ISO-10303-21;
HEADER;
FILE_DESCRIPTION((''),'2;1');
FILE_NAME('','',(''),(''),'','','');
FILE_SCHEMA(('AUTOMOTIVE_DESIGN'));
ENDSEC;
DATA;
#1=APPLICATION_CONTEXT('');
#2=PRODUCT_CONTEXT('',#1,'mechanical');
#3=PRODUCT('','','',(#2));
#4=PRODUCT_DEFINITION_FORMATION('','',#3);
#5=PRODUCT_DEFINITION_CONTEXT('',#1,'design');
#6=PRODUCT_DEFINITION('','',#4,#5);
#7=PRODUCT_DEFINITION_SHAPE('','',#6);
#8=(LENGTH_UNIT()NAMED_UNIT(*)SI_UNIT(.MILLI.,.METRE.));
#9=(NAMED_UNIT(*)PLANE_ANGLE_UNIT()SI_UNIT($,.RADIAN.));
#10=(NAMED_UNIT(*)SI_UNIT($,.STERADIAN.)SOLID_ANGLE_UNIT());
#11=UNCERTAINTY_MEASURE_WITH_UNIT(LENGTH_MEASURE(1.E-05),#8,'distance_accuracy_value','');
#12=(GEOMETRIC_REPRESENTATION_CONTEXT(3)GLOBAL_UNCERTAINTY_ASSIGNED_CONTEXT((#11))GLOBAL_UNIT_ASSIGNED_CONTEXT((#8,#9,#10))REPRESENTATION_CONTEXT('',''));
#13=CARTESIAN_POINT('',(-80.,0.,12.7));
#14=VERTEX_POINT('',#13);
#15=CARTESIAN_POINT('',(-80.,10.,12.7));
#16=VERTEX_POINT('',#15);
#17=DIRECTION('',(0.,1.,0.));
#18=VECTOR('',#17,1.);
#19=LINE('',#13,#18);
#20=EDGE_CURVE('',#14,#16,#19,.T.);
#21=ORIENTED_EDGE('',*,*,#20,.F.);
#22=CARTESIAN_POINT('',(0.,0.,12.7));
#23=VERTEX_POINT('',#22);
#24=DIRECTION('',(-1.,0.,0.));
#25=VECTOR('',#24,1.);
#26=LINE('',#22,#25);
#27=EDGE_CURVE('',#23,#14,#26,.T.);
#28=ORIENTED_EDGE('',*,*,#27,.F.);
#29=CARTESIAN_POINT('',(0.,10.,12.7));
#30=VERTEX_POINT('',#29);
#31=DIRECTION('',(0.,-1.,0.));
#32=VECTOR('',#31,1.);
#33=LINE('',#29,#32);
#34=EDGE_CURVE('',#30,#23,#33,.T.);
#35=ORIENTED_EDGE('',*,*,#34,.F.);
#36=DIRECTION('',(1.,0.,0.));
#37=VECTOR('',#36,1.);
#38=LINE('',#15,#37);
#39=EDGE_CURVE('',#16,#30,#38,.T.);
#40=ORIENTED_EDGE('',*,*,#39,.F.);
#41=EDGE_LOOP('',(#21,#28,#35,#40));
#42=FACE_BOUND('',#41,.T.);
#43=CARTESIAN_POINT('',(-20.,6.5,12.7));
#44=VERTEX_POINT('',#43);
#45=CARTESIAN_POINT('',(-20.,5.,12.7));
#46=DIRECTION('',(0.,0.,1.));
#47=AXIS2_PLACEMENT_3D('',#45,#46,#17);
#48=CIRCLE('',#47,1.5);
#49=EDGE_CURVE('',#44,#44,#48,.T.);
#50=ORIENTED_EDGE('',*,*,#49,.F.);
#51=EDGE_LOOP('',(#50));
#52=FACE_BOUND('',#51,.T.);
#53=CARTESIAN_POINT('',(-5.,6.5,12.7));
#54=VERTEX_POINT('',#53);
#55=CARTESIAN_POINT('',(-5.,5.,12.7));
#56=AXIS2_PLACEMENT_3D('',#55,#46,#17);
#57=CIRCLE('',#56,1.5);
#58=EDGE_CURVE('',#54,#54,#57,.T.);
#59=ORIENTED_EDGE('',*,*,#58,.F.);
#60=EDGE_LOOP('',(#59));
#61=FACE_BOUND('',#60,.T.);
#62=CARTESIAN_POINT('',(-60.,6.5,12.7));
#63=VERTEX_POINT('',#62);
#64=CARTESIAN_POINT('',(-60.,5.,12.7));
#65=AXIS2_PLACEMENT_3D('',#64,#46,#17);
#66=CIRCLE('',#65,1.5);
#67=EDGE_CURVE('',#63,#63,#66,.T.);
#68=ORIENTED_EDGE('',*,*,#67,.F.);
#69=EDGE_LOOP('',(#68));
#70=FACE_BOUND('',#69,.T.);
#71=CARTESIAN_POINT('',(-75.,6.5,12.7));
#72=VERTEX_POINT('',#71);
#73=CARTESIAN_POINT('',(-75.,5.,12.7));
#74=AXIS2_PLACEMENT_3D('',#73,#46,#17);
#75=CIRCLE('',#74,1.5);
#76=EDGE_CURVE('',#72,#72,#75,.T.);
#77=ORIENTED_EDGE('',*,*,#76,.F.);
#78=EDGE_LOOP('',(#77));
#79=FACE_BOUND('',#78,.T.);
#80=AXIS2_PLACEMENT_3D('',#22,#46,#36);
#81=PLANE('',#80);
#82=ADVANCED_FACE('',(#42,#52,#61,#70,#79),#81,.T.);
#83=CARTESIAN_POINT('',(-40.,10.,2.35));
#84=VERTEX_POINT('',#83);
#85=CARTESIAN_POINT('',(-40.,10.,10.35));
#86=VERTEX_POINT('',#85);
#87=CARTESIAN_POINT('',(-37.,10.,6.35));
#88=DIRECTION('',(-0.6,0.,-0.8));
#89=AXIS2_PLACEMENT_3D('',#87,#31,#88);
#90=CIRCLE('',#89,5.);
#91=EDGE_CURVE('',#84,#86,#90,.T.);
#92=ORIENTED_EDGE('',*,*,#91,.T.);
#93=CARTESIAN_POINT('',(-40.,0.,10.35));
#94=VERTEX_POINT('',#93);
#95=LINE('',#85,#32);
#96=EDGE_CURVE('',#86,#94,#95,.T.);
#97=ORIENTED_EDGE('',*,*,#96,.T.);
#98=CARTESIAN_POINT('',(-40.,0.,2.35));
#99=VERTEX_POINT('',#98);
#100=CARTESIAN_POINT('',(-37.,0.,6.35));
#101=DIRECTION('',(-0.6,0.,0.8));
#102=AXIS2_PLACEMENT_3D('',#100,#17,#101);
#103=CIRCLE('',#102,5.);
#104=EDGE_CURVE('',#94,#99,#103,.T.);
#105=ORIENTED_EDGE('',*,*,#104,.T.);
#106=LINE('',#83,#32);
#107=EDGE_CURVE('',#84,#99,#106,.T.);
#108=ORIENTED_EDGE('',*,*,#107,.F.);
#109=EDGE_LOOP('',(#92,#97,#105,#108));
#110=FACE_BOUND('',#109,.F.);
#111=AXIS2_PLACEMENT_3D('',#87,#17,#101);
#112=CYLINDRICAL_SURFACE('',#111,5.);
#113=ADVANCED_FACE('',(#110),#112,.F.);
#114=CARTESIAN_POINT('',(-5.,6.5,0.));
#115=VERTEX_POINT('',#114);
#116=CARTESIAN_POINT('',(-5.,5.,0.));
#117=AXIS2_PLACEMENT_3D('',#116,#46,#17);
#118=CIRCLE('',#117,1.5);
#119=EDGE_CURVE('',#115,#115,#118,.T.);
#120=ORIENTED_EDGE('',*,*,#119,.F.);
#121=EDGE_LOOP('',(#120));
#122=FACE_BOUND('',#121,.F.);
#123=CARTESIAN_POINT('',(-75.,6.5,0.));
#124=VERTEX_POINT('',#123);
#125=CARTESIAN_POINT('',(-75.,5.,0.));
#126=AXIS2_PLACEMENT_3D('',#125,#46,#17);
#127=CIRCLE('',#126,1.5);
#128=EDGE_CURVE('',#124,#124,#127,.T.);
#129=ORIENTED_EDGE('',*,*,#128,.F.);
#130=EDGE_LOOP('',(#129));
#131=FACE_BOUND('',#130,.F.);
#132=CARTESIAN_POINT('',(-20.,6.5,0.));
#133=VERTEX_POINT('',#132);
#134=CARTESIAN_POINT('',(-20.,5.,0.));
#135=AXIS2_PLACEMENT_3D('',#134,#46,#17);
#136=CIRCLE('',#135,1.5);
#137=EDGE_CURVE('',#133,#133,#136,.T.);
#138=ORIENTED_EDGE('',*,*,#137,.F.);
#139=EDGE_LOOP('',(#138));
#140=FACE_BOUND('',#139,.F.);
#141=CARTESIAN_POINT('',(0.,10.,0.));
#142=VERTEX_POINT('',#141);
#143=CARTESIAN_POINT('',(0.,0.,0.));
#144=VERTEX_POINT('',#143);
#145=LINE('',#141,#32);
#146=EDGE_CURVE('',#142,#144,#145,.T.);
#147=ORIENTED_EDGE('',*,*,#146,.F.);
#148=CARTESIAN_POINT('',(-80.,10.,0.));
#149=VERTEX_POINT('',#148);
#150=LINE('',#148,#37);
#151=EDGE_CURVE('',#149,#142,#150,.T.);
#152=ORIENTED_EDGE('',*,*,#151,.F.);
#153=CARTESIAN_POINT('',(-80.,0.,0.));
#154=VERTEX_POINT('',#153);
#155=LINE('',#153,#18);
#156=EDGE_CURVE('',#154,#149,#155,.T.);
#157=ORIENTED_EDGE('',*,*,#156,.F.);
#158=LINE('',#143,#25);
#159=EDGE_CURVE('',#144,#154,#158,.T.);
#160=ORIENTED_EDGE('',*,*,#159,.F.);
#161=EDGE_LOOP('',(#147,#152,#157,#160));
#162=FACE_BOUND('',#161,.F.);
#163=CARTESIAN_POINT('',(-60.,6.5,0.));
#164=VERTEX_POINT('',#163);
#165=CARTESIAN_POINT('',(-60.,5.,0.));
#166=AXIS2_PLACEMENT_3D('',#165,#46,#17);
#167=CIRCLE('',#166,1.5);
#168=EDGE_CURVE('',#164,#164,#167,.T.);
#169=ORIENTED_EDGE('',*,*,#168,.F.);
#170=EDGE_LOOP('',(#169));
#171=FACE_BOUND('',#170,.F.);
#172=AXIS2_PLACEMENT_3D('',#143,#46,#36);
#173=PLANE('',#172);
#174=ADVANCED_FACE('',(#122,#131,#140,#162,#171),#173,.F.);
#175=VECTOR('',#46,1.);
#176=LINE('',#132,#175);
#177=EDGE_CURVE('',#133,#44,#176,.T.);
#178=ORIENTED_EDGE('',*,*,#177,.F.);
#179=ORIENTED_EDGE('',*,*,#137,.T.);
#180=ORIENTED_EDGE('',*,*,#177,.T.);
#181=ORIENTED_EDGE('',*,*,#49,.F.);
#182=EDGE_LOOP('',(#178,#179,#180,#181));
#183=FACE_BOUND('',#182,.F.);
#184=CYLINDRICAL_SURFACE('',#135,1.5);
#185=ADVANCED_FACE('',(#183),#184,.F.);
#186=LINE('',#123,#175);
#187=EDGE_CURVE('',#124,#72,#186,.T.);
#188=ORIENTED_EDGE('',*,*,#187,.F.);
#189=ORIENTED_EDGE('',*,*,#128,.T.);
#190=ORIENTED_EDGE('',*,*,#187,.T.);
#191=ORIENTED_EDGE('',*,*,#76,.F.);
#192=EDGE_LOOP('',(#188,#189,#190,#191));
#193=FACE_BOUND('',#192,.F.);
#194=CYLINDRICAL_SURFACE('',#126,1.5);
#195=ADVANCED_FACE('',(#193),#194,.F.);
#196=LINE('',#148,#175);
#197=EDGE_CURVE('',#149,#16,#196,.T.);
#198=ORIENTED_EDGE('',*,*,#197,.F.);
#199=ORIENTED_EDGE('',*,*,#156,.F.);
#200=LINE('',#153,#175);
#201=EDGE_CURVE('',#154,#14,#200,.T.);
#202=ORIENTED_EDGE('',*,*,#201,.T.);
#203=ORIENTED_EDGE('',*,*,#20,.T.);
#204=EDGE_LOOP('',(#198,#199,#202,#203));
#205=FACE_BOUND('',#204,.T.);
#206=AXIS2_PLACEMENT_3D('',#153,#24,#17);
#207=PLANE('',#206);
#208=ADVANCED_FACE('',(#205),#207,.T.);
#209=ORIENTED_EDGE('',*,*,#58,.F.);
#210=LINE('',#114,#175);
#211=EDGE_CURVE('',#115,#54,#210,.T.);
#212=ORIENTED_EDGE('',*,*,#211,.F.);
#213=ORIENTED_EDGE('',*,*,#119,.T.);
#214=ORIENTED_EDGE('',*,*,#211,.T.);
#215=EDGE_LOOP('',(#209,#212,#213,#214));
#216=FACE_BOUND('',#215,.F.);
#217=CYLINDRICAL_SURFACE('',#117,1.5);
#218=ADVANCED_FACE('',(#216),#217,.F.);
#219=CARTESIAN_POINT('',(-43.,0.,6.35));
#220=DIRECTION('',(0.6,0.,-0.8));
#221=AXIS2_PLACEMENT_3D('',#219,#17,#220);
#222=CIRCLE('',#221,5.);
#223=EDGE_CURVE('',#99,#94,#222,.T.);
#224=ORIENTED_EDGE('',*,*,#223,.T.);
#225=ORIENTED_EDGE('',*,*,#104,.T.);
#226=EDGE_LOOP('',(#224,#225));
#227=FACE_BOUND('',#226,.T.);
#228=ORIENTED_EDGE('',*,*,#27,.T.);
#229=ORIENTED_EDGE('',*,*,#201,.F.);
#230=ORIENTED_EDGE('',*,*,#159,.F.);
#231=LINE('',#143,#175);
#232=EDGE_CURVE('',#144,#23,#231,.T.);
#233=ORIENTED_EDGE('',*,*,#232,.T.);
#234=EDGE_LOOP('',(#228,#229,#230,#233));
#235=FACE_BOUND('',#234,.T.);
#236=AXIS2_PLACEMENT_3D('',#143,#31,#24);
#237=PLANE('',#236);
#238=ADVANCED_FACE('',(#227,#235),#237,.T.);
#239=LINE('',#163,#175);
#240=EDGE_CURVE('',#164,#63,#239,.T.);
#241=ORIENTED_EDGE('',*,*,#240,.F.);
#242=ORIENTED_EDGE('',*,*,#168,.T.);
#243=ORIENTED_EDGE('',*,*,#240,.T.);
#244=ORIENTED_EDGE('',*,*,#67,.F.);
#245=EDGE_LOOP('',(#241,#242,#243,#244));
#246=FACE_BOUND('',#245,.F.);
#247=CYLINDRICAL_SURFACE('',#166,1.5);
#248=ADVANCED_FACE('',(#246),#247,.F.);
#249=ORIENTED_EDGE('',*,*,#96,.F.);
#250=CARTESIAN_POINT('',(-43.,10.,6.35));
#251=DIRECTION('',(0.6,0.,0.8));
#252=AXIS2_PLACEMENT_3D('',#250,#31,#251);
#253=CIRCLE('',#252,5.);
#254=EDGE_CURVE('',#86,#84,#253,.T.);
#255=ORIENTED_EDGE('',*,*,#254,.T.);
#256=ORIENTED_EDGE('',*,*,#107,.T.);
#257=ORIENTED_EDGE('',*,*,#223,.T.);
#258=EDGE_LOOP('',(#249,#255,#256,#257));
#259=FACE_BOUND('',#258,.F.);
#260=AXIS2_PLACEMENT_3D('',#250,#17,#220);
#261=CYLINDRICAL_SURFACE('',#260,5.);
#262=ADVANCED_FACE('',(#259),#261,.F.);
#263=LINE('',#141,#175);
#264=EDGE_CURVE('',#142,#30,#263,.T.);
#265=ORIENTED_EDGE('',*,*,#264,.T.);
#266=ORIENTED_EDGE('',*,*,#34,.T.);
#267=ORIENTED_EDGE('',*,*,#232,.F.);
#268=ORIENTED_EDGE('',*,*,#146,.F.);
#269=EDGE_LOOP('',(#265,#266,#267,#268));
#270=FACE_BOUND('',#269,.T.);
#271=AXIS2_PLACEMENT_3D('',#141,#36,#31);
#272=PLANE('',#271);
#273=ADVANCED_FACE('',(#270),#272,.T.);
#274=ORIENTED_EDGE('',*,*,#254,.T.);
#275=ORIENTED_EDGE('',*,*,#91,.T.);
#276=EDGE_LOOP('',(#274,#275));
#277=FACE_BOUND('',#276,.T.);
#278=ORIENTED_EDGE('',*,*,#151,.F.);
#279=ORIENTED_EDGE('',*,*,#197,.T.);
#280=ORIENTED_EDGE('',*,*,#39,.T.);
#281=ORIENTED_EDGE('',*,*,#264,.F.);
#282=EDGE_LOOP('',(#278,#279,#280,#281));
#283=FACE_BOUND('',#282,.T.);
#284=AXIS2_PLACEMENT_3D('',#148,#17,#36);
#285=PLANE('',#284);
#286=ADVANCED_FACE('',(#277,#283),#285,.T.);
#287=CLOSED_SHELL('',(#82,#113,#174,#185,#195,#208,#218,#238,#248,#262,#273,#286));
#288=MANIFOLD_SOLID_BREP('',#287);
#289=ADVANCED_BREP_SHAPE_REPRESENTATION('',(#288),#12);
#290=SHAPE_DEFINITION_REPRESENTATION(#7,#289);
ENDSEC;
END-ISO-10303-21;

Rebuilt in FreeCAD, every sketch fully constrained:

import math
import FreeCAD as App
import Part
import Sketcher
from FreeCAD import Vector
Q = App.Units.Quantity

doc = App.newDocument("Part")
body = doc.addObject("PartDesign::Body", "Body")

# Sketch on XY plane
sketch1 = body.newObject("Sketcher::SketchObject", "Sketch")
sketch1.AttachmentSupport = (doc.getObject("XY_Plane"), [""])
sketch1.MapMode = "FlatFace"
sketch1.addGeometry([
    Part.LineSegment(Vector(0, 10, 0), Vector(-80, 10, 0)),
    Part.LineSegment(Vector(-80, 10, 0), Vector(-80, 0, 0)),
    Part.LineSegment(Vector(-80, 0, 0), Vector(0, 0, 0)),
    Part.LineSegment(Vector(0, 0, 0), Vector(0, 10, 0)),
], False)
sketch1.addConstraint([
    Sketcher.Constraint("Coincident", 0, 2, 1, 1),
    Sketcher.Constraint("Coincident", 1, 2, 2, 1),
    Sketcher.Constraint("Coincident", 2, 2, 3, 1),
    Sketcher.Constraint("Coincident", 3, 2, 0, 1),
    Sketcher.Constraint("Horizontal", 0),
    Sketcher.Constraint("Vertical", 1),
    Sketcher.Constraint("Horizontal", 2),
    Sketcher.Constraint("Vertical", 3),
    Sketcher.Constraint("Coincident", 2, 2, -1, 1),
    Sketcher.Constraint("DistanceX", 0, 2, 0, 1, Q("3.1496 in")),
    Sketcher.Constraint("DistanceY", 1, 2, 1, 1, Q("0.3937 in")),
])
pad1 = body.newObject("PartDesign::Pad", "Pad")
pad1.Profile = sketch1
pad1.Length = Q("0.5 in")

# Sketch on XY plane
sketch2 = body.newObject("Sketcher::SketchObject", "Sketch001")
sketch2.AttachmentSupport = (doc.getObject("XY_Plane"), [""])
sketch2.MapMode = "FlatFace"
sketch2.addGeometry([
    Part.Circle(Vector(-5, 5, 0), Vector(0, 0, 1), 1.5),
    Part.Circle(Vector(-20, 5, 0), Vector(0, 0, 1), 1.5),
    Part.Circle(Vector(-60, 5, 0), Vector(0, 0, 1), 1.5),
    Part.Circle(Vector(-75, 5, 0), Vector(0, 0, 1), 1.5),
], False)
sketch2.addConstraint([
    Sketcher.Constraint("Equal", 0, 1),
    Sketcher.Constraint("Equal", 1, 2),
    Sketcher.Constraint("Equal", 2, 3),
    Sketcher.Constraint("Horizontal", 0, 3, 1, 3),
    Sketcher.Constraint("Horizontal", 1, 3, 2, 3),
    Sketcher.Constraint("Horizontal", 2, 3, 3, 3),
    Sketcher.Constraint("Diameter", 0, Q("0.1181 in")),
    Sketcher.Constraint("DistanceX", 1, 3, -1, 1, Q("0.7874 in")),
    Sketcher.Constraint("DistanceX", 2, 3, -1, 1, Q("2.3622 in")),
    Sketcher.Constraint("DistanceX", 3, 3, 0, 3, Q("2.7559 in")),
    Sketcher.Constraint("DistanceX", 0, 3, -1, 1, Q("5 mm")),
    Sketcher.Constraint("DistanceY", -1, 1, 0, 3, Q("5 mm")),
])
doc.recompute()
hole = body.newObject("PartDesign::Hole", "Hole")
hole.Profile = sketch2
hole.ThreadType = "None"
hole.Diameter = Q("0.1181102 in")
hole.DepthType = "ThroughAll"
hole.Reversed = True

# Sketch on XZ plane
sketch3 = body.newObject("Sketcher::SketchObject", "Sketch002")
sketch3.AttachmentSupport = (doc.getObject("XZ_Plane"), [""])
sketch3.MapMode = "FlatFace"
sketch3.AttachmentOffset = App.Placement(Vector(0, 0, -0.3937008 * 25.4), App.Rotation())
sketch3.addGeometry([
    Part.ArcOfCircle(Part.Circle(Vector(-43, 6, 0), Vector(0, 0, 1), 5), math.radians(53), math.radians(307)),
    Part.ArcOfCircle(Part.Circle(Vector(-37, 6, 0), Vector(0, 0, 1), 5), math.radians(-127), math.radians(127)),
], False)
sketch3.addConstraint([
    Sketcher.Constraint("Coincident", 0, 1, 1, 2),
    Sketcher.Constraint("Coincident", 1, 1, 0, 2),
    Sketcher.Constraint("Equal", 0, 1),
    Sketcher.Constraint("Horizontal", 0, 3, 1, 3),
    Sketcher.Constraint("Radius", 0, Q("5 mm")),
    Sketcher.Constraint("DistanceY", -1, 1, 0, 3, Q("0.25 in")),
    Sketcher.Constraint("DistanceX", 0, 3, 1, 3, Q("6 mm")),
    Sketcher.Constraint("DistanceX", 1, 3, -1, 1, Q("1.4567 in")),
])
pocket1 = body.newObject("PartDesign::Pocket", "Pocket")
pocket1.Profile = sketch3
pocket1.Length = Q("0.3937008 in")
pocket1.Reversed = True

doc.recompute()
